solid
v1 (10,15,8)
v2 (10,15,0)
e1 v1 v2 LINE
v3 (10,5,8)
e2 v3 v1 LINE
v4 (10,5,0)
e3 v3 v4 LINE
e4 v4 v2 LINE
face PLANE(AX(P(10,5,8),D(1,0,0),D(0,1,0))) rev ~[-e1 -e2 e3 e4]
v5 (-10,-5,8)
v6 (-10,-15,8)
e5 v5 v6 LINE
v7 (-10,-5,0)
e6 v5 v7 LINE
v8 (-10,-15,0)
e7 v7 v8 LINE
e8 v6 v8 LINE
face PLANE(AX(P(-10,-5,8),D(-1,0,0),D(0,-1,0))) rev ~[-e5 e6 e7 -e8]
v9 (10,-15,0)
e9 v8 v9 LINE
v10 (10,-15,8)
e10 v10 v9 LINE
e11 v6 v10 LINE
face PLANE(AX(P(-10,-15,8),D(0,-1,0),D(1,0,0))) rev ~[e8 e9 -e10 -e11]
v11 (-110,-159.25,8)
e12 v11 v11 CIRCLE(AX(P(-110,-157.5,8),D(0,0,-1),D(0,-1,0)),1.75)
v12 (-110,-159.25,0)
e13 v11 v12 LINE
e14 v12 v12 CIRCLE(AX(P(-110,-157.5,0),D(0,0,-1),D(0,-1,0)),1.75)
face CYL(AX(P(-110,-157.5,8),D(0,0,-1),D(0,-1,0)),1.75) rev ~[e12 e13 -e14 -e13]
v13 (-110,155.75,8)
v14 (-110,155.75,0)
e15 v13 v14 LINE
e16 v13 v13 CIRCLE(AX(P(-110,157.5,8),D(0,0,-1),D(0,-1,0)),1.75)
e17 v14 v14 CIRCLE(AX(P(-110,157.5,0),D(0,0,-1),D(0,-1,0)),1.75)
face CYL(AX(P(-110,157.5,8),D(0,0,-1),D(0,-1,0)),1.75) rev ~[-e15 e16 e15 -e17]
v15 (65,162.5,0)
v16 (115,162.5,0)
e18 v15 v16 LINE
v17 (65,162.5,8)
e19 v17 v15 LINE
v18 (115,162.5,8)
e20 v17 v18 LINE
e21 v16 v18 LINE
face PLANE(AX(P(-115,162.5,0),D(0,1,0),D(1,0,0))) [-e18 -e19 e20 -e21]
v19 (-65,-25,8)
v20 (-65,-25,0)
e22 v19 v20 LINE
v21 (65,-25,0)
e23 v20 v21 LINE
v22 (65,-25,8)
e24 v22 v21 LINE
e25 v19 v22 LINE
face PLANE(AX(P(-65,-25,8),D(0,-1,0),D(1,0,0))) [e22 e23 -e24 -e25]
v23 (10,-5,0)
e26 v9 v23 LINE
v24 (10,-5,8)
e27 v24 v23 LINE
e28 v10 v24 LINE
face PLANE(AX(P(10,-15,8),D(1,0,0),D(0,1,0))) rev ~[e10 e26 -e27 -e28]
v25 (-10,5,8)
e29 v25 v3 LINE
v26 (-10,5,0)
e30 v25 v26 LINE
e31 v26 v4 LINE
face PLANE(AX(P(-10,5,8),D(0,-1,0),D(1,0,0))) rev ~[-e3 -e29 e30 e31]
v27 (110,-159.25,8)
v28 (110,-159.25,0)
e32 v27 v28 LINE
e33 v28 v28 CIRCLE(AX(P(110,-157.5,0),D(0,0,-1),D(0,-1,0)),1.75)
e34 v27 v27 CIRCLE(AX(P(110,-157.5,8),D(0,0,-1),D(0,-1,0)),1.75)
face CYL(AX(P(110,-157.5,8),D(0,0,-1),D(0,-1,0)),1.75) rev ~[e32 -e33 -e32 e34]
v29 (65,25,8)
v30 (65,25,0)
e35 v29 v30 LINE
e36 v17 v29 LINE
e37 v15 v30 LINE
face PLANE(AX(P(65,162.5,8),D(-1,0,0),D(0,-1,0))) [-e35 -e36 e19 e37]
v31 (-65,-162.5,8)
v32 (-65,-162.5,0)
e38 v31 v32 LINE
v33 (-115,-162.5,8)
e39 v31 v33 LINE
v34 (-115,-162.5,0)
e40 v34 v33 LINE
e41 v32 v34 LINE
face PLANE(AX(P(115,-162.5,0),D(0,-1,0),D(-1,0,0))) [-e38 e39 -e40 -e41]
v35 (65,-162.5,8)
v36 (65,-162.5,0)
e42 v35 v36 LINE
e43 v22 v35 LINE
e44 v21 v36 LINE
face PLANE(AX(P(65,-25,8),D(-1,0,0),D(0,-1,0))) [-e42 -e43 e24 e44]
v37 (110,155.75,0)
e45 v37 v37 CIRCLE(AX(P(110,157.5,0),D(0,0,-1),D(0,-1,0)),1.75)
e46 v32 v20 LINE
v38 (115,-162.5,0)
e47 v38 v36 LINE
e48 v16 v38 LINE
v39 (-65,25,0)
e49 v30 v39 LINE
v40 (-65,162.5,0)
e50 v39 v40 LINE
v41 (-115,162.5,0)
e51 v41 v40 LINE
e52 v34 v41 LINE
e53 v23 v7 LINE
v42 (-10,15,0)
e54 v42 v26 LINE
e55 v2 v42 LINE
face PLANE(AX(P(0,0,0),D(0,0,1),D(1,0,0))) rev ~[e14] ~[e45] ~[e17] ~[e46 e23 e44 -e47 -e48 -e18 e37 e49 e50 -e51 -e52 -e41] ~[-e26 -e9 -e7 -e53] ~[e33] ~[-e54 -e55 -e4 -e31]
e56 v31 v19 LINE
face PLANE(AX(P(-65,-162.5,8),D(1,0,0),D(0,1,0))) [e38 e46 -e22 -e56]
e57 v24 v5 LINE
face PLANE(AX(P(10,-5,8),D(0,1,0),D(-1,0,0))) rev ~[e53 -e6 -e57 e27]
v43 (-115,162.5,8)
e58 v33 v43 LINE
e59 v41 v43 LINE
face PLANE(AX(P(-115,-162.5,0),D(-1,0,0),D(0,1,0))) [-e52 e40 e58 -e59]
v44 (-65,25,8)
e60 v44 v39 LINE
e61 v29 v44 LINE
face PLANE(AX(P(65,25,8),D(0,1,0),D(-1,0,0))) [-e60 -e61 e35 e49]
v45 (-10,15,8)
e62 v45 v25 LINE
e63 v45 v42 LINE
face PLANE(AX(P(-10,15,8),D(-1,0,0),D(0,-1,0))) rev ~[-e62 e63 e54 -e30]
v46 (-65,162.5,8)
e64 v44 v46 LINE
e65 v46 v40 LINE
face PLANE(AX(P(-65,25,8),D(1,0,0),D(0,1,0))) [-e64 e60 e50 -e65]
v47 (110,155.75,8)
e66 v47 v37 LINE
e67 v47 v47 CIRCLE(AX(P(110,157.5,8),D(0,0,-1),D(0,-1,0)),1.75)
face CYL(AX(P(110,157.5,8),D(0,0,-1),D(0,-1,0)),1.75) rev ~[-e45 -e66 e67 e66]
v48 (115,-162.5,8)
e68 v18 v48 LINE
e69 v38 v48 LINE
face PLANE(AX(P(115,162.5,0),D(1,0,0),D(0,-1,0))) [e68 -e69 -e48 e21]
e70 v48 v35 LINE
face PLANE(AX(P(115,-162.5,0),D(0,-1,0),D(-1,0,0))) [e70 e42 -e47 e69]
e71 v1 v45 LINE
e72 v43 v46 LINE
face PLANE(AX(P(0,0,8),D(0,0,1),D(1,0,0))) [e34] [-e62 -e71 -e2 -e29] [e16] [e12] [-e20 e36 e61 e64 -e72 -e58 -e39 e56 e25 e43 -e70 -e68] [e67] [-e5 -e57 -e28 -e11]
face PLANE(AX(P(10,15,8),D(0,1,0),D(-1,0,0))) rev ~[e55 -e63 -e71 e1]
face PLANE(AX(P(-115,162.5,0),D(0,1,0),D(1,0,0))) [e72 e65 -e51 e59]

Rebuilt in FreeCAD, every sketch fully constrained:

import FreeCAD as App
import Part
import Sketcher

V = App.Vector

doc = App.newDocument("Part")
body = doc.addObject("PartDesign::Body", "Body")

sketch1 = body.newObject("Sketcher::SketchObject", "Sketch")
sketch1.AttachmentSupport = (doc.getObject("XY_Plane"), [""])
sketch1.MapMode = "FlatFace"
sketch1.addGeometry(Part.LineSegment(V(115, 162.5, 0), V(-115, 162.5, 0)), False)
sketch1.addGeometry(Part.LineSegment(V(-115, 162.5, 0), V(-115, -162.5, 0)), False)
sketch1.addGeometry(Part.LineSegment(V(-115, -162.5, 0), V(115, -162.5, 0)), False)
sketch1.addGeometry(Part.LineSegment(V(115, -162.5, 0), V(115, 162.5, 0)), False)
sketch1.addConstraint(Sketcher.Constraint("Coincident", 0, 2, 1, 1))
sketch1.addConstraint(Sketcher.Constraint("Coincident", 1, 2, 2, 1))
sketch1.addConstraint(Sketcher.Constraint("Coincident", 2, 2, 3, 1))
sketch1.addConstraint(Sketcher.Constraint("Coincident", 3, 2, 0, 1))
sketch1.addConstraint(Sketcher.Constraint("Horizontal", 0))
sketch1.addConstraint(Sketcher.Constraint("Vertical", 1))
sketch1.addConstraint(Sketcher.Constraint("Horizontal", 2))
sketch1.addConstraint(Sketcher.Constraint("Vertical", 3))
sketch1.addConstraint(Sketcher.Constraint("Symmetric", 0, 2, 2, 2, -1, 1))
sketch1.addConstraint(Sketcher.Constraint("DistanceX", 0, 2, 0, 1, 230.0))
sketch1.addConstraint(Sketcher.Constraint("DistanceY", 1, 2, 1, 1, 325.0))
pad1 = body.newObject("PartDesign::Pad", "Pad")
pad1.Profile = sketch1
pad1.Length = 8

sketch2 = body.newObject("Sketcher::SketchObject", "Sketch001")
sketch2.AttachmentSupport = (doc.getObject("XY_Plane"), [""])
sketch2.MapMode = "FlatFace"
sketch2.AttachmentOffset = App.Placement(V(0, 0, 8), App.Rotation())
sketch2.addGeometry(Part.Circle(V(-110, -157.5, 0), V(0, 0, 1), 1.75), False)
sketch2.addGeometry(Part.Circle(V(-110, 157.5, 0), V(0, 0, 1), 1.75), False)
sketch2.addGeometry(Part.Circle(V(110, 157.5, 0), V(0, 0, 1), 1.75), False)
sketch2.addGeometry(Part.Circle(V(110, -157.5, 0), V(0, 0, 1), 1.75), False)
sketch2.addConstraint(Sketcher.Constraint("Equal", 0, 1))
sketch2.addConstraint(Sketcher.Constraint("Equal", 1, 2))
sketch2.addConstraint(Sketcher.Constraint("Equal", 2, 3))
sketch2.addConstraint(Sketcher.Constraint("Symmetric", 0, 3, 2, 3, -1, 1))
sketch2.addConstraint(Sketcher.Constraint("Symmetric", 1, 3, 3, 3, -1, 1))
sketch2.addConstraint(Sketcher.Constraint("Symmetric", 1, 3, 2, 3, -2))
sketch2.addConstraint(Sketcher.Constraint("Diameter", 0, 3.5))
sketch2.addConstraint(Sketcher.Constraint("DistanceX", 0, 3, -1, 1, 110.0))
sketch2.addConstraint(Sketcher.Constraint("DistanceY", 0, 3, 1, 3, 315.0))
doc.recompute()
hole = body.newObject("PartDesign::Hole", "Hole")
hole.Profile = sketch2
hole.ThreadType = "None"
hole.Diameter = 3.5
hole.DepthType = "ThroughAll"

sketch3 = body.newObject("Sketcher::SketchObject", "Sketch002")
sketch3.AttachmentSupport = (doc.getObject("XY_Plane"), [""])
sketch3.MapMode = "FlatFace"
sketch3.AttachmentOffset = App.Placement(V(0, 0, 8), App.Rotation())
sketch3.addGeometry(Part.LineSegment(V(-65, -162.5, 0), V(65, -162.5, 0)), False)
sketch3.addGeometry(Part.LineSegment(V(65, -162.5, 0), V(65, -25, 0)), False)
sketch3.addGeometry(Part.LineSegment(V(65, -25, 0), V(-65, -25, 0)), False)
sketch3.addGeometry(Part.LineSegment(V(-65, -25, 0), V(-65, -162.5, 0)), False)
sketch3.addGeometry(Part.LineSegment(V(65, 25, 0), V(65, 162.5, 0)), False)
sketch3.addGeometry(Part.LineSegment(V(65, 162.5, 0), V(-65, 162.5, 0)), False)
sketch3.addGeometry(Part.LineSegment(V(-65, 162.5, 0), V(-65, 25, 0)), False)
sketch3.addGeometry(Part.LineSegment(V(-65, 25, 0), V(65, 25, 0)), False)
sketch3.addConstraint(Sketcher.Constraint("Coincident", 0, 2, 1, 1))
sketch3.addConstraint(Sketcher.Constraint("Coincident", 1, 2, 2, 1))
sketch3.addConstraint(Sketcher.Constraint("Coincident", 2, 2, 3, 1))
sketch3.addConstraint(Sketcher.Constraint("Coincident", 3, 2, 0, 1))
sketch3.addConstraint(Sketcher.Constraint("Coincident", 4, 2, 5, 1))
sketch3.addConstraint(Sketcher.Constraint("Coincident", 5, 2, 6, 1))
sketch3.addConstraint(Sketcher.Constraint("Coincident", 6, 2, 7, 1))
sketch3.addConstraint(Sketcher.Constraint("Coincident", 7, 2, 4, 1))
sketch3.addConstraint(Sketcher.Constraint("Horizontal", 0))
sketch3.addConstraint(Sketcher.Constraint("Vertical", 1))
sketch3.addConstraint(Sketcher.Constraint("Horizontal", 2))
sketch3.addConstraint(Sketcher.Constraint("Vertical", 3))
sketch3.addConstraint(Sketcher.Constraint("Vertical", 4))
sketch3.addConstraint(Sketcher.Constraint("Horizontal", 5))
sketch3.addConstraint(Sketcher.Constraint("Vertical", 6))
sketch3.addConstraint(Sketcher.Constraint("Horizontal", 7))
sketch3.addConstraint(Sketcher.Constraint("Symmetric", 3, 2, 4, 2, -1, 1))
sketch3.addConstraint(Sketcher.Constraint("Symmetric", 1, 2, 6, 2, -1, 1))
sketch3.addConstraint(Sketcher.Constraint("Vertical", 1, 2, 4, 2))
sketch3.addConstraint(Sketcher.Constraint("DistanceY", 1, 2, -1, 1, 25.0))
sketch3.addConstraint(Sketcher.Constraint("DistanceX", 0, 1, 0, 2, 130.0))
sketch3.addConstraint(Sketcher.Constraint("DistanceY", 1, 1, 1, 2, 137.5))
pocket1 = body.newObject("PartDesign::Pocket", "Pocket")
pocket1.Profile = sketch3
pocket1.Length = 10

sketch4 = body.newObject("Sketcher::SketchObject", "Sketch003")
sketch4.AttachmentSupport = (doc.getObject("XY_Plane"), [""])
sketch4.MapMode = "FlatFace"
sketch4.AttachmentOffset = App.Placement(V(0, 0, 8), App.Rotation())
sketch4.addGeometry(Part.LineSegment(V(-10, -5, 0), V(-10, -15, 0)), False)
sketch4.addGeometry(Part.LineSegment(V(-10, -15, 0), V(10, -15, 0)), False)
sketch4.addGeometry(Part.LineSegment(V(10, -15, 0), V(10, -5, 0)), False)
sketch4.addGeometry(Part.LineSegment(V(10, -5, 0), V(-10, -5, 0)), False)
sketch4.addGeometry(Part.LineSegment(V(-10, 15, 0), V(-10, 5, 0)), False)
sketch4.addGeometry(Part.LineSegment(V(-10, 5, 0), V(10, 5, 0)), False)
sketch4.addGeometry(Part.LineSegment(V(10, 5, 0), V(10, 15, 0)), False)
sketch4.addGeometry(Part.LineSegment(V(10, 15, 0), V(-10, 15, 0)), False)
sketch4.addConstraint(Sketcher.Constraint("Coincident", 0, 2, 1, 1))
sketch4.addConstraint(Sketcher.Constraint("Coincident", 1, 2, 2, 1))
sketch4.addConstraint(Sketcher.Constraint("Coincident", 2, 2, 3, 1))
sketch4.addConstraint(Sketcher.Constraint("Coincident", 3, 2, 0, 1))
sketch4.addConstraint(Sketcher.Constraint("Coincident", 4, 2, 5, 1))
sketch4.addConstraint(Sketcher.Constraint("Coincident", 5, 2, 6, 1))
sketch4.addConstraint(Sketcher.Constraint("Coincident", 6, 2, 7, 1))
sketch4.addConstraint(Sketcher.Constraint("Coincident", 7, 2, 4, 1))
sketch4.addConstraint(Sketcher.Constraint("Vertical", 0))
sketch4.addConstraint(Sketcher.Constraint("Horizontal", 1))
sketch4.addConstraint(Sketcher.Constraint("Vertical", 2))
sketch4.addConstraint(Sketcher.Constraint("Horizontal", 3))
sketch4.addConstraint(Sketcher.Constraint("Vertical", 4))
sketch4.addConstraint(Sketcher.Constraint("Horizontal", 5))
sketch4.addConstraint(Sketcher.Constraint("Vertical", 6))
sketch4.addConstraint(Sketcher.Constraint("Horizontal", 7))
sketch4.addConstraint(Sketcher.Constraint("Symmetric", 2, 2, 4, 2, -1, 1))
sketch4.addConstraint(Sketcher.Constraint("Symmetric", 0, 2, 6, 2, -1, 1))
sketch4.addConstraint(Sketcher.Constraint("Vertical", 3, 2, 4, 2))
sketch4.addConstraint(Sketcher.Constraint("DistanceX", 1, 1, 1, 2, 20.0))
sketch4.addConstraint(Sketcher.Constraint("DistanceY", 0, 2, 0, 1, 10.0))
sketch4.addConstraint(Sketcher.Constraint("DistanceY", 3, 2, 4, 2, 10.0))
pocket2 = body.newObject("PartDesign::Pocket", "Pocket001")
pocket2.Profile = sketch4
pocket2.Type = "ThroughAll"

doc.recompute()
